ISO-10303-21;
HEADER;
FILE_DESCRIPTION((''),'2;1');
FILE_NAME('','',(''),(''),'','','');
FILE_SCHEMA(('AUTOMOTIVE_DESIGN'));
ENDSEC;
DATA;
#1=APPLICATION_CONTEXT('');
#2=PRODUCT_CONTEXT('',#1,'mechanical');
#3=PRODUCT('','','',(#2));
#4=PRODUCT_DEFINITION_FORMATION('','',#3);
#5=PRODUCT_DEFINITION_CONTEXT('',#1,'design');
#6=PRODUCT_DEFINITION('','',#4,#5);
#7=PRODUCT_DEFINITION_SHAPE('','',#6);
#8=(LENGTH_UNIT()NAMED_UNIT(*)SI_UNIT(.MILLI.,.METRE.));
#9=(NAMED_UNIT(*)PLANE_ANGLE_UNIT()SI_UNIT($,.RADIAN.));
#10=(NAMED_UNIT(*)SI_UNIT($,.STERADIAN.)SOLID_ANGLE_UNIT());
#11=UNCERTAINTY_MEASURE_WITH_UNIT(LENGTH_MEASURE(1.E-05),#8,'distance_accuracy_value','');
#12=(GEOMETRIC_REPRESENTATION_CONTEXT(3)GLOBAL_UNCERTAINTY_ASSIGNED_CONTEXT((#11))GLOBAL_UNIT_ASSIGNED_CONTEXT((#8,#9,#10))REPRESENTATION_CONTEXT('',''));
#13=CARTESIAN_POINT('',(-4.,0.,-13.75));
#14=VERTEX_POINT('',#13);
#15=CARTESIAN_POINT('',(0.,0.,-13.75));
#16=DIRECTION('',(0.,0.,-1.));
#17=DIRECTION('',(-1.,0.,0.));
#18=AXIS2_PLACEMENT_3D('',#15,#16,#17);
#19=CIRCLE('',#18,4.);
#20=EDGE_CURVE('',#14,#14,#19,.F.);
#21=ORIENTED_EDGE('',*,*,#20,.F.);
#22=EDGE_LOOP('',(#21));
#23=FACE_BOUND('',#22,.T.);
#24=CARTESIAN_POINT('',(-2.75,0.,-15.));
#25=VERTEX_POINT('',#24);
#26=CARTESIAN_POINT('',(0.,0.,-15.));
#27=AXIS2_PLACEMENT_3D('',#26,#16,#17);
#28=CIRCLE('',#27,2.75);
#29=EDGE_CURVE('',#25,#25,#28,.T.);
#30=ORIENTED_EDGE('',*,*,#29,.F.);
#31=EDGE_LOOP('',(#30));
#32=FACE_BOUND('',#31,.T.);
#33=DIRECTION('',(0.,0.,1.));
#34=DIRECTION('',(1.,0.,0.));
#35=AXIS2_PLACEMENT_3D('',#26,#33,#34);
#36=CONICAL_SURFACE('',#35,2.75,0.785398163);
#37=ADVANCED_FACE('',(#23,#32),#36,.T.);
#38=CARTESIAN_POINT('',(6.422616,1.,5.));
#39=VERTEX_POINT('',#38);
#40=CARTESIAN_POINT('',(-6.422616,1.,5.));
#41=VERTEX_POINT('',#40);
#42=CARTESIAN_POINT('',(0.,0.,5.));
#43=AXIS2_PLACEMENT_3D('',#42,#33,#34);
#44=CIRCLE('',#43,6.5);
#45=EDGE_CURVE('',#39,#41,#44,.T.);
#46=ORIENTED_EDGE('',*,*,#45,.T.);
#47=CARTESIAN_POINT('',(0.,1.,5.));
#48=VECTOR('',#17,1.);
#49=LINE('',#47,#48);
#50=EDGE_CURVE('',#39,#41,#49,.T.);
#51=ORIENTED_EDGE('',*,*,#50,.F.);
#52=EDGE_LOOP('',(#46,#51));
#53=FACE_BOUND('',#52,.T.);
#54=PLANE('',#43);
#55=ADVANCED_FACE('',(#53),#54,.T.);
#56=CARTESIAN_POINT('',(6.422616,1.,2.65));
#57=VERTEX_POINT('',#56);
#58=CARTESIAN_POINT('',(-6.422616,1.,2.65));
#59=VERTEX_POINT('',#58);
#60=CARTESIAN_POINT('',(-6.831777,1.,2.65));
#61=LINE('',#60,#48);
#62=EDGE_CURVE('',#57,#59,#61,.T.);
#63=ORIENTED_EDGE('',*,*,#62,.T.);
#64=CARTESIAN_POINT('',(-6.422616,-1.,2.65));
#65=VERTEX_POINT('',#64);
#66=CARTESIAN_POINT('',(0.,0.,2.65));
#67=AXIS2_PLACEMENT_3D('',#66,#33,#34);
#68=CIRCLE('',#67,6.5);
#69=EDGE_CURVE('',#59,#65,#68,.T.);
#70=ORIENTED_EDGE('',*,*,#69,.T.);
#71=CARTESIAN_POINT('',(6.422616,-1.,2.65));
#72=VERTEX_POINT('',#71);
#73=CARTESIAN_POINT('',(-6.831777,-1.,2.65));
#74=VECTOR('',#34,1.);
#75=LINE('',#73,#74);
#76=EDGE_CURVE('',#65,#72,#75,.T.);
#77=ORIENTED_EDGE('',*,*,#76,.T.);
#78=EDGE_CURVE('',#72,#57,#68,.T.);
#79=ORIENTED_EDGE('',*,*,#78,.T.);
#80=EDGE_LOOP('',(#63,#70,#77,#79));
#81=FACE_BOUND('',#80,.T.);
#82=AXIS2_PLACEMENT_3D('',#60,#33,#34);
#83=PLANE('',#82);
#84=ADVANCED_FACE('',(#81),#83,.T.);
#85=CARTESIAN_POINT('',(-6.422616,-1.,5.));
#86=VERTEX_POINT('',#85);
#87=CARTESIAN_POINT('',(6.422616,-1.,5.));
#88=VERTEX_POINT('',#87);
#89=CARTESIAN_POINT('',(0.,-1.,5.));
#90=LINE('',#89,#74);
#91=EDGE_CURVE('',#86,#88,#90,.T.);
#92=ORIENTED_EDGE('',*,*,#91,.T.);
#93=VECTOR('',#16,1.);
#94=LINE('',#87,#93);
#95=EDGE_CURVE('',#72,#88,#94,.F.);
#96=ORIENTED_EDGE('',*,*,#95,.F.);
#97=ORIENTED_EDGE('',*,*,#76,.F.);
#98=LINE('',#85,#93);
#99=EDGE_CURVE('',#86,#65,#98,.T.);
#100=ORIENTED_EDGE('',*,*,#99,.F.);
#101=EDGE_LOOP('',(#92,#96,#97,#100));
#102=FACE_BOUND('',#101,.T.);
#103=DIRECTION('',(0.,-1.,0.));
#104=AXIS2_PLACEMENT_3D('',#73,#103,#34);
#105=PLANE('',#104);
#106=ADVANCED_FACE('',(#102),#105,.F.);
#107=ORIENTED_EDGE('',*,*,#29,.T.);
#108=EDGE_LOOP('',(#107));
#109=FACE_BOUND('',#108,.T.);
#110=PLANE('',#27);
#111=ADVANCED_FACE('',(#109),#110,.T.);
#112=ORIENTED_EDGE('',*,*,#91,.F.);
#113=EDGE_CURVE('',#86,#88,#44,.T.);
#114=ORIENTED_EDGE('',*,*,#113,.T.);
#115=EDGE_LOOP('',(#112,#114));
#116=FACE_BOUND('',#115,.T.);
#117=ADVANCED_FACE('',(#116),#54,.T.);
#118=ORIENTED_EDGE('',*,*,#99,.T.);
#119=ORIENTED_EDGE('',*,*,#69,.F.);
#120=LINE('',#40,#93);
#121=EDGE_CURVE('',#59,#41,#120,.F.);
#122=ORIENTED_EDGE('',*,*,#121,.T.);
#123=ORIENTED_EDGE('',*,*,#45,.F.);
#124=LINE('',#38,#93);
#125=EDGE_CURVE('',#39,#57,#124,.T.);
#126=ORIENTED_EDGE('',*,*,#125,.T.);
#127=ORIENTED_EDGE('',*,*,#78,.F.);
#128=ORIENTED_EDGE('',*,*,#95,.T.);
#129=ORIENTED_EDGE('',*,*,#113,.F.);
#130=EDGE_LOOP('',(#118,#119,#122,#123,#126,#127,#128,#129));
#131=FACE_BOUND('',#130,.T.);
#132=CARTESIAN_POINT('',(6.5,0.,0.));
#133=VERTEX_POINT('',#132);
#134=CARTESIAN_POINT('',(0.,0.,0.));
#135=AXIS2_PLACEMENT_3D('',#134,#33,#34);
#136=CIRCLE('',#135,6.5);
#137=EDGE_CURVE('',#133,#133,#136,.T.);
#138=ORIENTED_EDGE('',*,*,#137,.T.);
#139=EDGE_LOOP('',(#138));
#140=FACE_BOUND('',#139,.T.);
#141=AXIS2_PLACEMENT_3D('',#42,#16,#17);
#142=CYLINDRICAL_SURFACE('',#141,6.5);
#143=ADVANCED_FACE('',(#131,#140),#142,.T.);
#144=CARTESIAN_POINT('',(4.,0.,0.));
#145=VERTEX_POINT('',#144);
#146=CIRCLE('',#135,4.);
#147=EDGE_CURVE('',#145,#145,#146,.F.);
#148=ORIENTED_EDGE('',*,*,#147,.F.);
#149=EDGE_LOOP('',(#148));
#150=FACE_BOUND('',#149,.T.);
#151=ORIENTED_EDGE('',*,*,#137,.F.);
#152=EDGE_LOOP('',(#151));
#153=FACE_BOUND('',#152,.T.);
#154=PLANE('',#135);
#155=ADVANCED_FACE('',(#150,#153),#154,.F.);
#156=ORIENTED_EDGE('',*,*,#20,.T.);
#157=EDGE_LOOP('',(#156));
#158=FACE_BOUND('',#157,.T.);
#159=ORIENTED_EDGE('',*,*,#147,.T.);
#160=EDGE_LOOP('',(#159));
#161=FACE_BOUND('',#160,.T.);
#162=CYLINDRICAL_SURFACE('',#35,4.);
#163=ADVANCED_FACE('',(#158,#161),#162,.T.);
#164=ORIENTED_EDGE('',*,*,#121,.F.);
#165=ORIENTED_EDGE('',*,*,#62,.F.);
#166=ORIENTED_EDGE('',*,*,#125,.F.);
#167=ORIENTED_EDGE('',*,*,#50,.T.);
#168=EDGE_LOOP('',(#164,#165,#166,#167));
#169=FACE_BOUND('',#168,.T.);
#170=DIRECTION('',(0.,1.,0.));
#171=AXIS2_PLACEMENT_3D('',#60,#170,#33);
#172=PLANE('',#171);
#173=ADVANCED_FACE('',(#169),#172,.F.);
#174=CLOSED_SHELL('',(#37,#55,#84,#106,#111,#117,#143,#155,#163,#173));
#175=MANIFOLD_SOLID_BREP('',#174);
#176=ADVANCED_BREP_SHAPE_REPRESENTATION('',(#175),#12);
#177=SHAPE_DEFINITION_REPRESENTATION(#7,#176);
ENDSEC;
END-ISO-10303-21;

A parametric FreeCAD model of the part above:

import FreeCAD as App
import Part
import Sketcher
Q = App.Units.Quantity


def edges_at(feature, points):
    """Names of the edges that pass closest to the given points."""
    edges = feature.Shape.Edges
    near = lambda p: min(range(len(edges)), key=lambda i: edges[i].distToShape(Part.Vertex(*p))[0])
    return sorted({f"Edge{near(p) + 1}" for p in points})


def add_polygon(sketch, points):
    """Adds a closed chain of lines whose ends are joined by coincident constraints."""
    first, n = sketch.GeometryCount, len(points)
    for a, b in zip(points, points[1:] + points[:1]):
        sketch.addGeometry(Part.LineSegment(App.Vector(*a, 0), App.Vector(*b, 0)), False)
    for i in range(n):
        sketch.addConstraint(Sketcher.Constraint("Coincident", first + i, 2, first + (i + 1) % n, 1))

doc = App.newDocument("Part")
body = doc.addObject("PartDesign::Body", "Body")

# Sketch on XY plane
sketch1 = body.newObject("Sketcher::SketchObject", "Sketch")
sketch1.AttachmentSupport = (doc.getObject("XY_Plane"), [""])
sketch1.MapMode = "FlatFace"
sketch1.addGeometry(Part.Circle(App.Vector(0, 0, 0), App.Vector(0, 0, 1), 6.5), False)
sketch1.addConstraint([
    Sketcher.Constraint("Coincident", 0, 3, -1, 1),
    Sketcher.Constraint("Diameter", 0, Q("13 mm")),
])
pad1 = body.newObject("PartDesign::Pad", "Pad")
pad1.Profile = sketch1
pad1.Length = 5

# Sketch on XY plane
sketch2 = body.newObject("Sketcher::SketchObject", "Sketch001")
sketch2.AttachmentSupport = (doc.getObject("XY_Plane"), [""])
sketch2.MapMode = "FlatFace"
sketch2.addGeometry(Part.Circle(App.Vector(0, 0, 0), App.Vector(0, 0, 1), 4), False)
sketch2.addConstraint([
    Sketcher.Constraint("Coincident", 0, 3, -1, 1),
    Sketcher.Constraint("Diameter", 0, Q("8 mm")),
])
pad2 = body.newObject("PartDesign::Pad", "Pad001")
pad2.Profile = sketch2
pad2.Length = 15
pad2.Reversed = True

# Sketch on XY plane
sketch3 = body.newObject("Sketcher::SketchObject", "Sketch002")
sketch3.AttachmentSupport = (doc.getObject("XY_Plane"), [""])
sketch3.MapMode = "FlatFace"
sketch3.AttachmentOffset = App.Placement(App.Vector(0, 0, 5), App.Rotation())
add_polygon(sketch3, [(-6.831777, 1), (-6.831777, -1), (6.854031, -1), (6.854031, 1)])  # lines 0-3
sketch3.addConstraint([
    Sketcher.Constraint("Vertical", 0),
    Sketcher.Constraint("Horizontal", 1),
    Sketcher.Constraint("Vertical", 2),
    Sketcher.Constraint("Horizontal", 3),
    Sketcher.Constraint("DistanceY", 0, 2, 0, 1, Q("2 mm")),
    Sketcher.Constraint("DistanceY", 0, 2, -1, 1, Q("1 mm")),
    Sketcher.Constraint("DistanceX", 1, 1, 1, 2, Q("13.685808 mm")),
    Sketcher.Constraint("DistanceX", -1, 1, 1, 2, Q("6.854031 mm")),
])
pocket1 = body.newObject("PartDesign::Pocket", "Pocket")
pocket1.Profile = sketch3
pocket1.Length = 2.35
doc.recompute()

chamfer = body.newObject("PartDesign::Chamfer", "Chamfer")
chamfer.Base = (pocket1, edges_at(pocket1, [(-4, 0, -15)]))
chamfer.Size = 1.25

doc.recompute()
